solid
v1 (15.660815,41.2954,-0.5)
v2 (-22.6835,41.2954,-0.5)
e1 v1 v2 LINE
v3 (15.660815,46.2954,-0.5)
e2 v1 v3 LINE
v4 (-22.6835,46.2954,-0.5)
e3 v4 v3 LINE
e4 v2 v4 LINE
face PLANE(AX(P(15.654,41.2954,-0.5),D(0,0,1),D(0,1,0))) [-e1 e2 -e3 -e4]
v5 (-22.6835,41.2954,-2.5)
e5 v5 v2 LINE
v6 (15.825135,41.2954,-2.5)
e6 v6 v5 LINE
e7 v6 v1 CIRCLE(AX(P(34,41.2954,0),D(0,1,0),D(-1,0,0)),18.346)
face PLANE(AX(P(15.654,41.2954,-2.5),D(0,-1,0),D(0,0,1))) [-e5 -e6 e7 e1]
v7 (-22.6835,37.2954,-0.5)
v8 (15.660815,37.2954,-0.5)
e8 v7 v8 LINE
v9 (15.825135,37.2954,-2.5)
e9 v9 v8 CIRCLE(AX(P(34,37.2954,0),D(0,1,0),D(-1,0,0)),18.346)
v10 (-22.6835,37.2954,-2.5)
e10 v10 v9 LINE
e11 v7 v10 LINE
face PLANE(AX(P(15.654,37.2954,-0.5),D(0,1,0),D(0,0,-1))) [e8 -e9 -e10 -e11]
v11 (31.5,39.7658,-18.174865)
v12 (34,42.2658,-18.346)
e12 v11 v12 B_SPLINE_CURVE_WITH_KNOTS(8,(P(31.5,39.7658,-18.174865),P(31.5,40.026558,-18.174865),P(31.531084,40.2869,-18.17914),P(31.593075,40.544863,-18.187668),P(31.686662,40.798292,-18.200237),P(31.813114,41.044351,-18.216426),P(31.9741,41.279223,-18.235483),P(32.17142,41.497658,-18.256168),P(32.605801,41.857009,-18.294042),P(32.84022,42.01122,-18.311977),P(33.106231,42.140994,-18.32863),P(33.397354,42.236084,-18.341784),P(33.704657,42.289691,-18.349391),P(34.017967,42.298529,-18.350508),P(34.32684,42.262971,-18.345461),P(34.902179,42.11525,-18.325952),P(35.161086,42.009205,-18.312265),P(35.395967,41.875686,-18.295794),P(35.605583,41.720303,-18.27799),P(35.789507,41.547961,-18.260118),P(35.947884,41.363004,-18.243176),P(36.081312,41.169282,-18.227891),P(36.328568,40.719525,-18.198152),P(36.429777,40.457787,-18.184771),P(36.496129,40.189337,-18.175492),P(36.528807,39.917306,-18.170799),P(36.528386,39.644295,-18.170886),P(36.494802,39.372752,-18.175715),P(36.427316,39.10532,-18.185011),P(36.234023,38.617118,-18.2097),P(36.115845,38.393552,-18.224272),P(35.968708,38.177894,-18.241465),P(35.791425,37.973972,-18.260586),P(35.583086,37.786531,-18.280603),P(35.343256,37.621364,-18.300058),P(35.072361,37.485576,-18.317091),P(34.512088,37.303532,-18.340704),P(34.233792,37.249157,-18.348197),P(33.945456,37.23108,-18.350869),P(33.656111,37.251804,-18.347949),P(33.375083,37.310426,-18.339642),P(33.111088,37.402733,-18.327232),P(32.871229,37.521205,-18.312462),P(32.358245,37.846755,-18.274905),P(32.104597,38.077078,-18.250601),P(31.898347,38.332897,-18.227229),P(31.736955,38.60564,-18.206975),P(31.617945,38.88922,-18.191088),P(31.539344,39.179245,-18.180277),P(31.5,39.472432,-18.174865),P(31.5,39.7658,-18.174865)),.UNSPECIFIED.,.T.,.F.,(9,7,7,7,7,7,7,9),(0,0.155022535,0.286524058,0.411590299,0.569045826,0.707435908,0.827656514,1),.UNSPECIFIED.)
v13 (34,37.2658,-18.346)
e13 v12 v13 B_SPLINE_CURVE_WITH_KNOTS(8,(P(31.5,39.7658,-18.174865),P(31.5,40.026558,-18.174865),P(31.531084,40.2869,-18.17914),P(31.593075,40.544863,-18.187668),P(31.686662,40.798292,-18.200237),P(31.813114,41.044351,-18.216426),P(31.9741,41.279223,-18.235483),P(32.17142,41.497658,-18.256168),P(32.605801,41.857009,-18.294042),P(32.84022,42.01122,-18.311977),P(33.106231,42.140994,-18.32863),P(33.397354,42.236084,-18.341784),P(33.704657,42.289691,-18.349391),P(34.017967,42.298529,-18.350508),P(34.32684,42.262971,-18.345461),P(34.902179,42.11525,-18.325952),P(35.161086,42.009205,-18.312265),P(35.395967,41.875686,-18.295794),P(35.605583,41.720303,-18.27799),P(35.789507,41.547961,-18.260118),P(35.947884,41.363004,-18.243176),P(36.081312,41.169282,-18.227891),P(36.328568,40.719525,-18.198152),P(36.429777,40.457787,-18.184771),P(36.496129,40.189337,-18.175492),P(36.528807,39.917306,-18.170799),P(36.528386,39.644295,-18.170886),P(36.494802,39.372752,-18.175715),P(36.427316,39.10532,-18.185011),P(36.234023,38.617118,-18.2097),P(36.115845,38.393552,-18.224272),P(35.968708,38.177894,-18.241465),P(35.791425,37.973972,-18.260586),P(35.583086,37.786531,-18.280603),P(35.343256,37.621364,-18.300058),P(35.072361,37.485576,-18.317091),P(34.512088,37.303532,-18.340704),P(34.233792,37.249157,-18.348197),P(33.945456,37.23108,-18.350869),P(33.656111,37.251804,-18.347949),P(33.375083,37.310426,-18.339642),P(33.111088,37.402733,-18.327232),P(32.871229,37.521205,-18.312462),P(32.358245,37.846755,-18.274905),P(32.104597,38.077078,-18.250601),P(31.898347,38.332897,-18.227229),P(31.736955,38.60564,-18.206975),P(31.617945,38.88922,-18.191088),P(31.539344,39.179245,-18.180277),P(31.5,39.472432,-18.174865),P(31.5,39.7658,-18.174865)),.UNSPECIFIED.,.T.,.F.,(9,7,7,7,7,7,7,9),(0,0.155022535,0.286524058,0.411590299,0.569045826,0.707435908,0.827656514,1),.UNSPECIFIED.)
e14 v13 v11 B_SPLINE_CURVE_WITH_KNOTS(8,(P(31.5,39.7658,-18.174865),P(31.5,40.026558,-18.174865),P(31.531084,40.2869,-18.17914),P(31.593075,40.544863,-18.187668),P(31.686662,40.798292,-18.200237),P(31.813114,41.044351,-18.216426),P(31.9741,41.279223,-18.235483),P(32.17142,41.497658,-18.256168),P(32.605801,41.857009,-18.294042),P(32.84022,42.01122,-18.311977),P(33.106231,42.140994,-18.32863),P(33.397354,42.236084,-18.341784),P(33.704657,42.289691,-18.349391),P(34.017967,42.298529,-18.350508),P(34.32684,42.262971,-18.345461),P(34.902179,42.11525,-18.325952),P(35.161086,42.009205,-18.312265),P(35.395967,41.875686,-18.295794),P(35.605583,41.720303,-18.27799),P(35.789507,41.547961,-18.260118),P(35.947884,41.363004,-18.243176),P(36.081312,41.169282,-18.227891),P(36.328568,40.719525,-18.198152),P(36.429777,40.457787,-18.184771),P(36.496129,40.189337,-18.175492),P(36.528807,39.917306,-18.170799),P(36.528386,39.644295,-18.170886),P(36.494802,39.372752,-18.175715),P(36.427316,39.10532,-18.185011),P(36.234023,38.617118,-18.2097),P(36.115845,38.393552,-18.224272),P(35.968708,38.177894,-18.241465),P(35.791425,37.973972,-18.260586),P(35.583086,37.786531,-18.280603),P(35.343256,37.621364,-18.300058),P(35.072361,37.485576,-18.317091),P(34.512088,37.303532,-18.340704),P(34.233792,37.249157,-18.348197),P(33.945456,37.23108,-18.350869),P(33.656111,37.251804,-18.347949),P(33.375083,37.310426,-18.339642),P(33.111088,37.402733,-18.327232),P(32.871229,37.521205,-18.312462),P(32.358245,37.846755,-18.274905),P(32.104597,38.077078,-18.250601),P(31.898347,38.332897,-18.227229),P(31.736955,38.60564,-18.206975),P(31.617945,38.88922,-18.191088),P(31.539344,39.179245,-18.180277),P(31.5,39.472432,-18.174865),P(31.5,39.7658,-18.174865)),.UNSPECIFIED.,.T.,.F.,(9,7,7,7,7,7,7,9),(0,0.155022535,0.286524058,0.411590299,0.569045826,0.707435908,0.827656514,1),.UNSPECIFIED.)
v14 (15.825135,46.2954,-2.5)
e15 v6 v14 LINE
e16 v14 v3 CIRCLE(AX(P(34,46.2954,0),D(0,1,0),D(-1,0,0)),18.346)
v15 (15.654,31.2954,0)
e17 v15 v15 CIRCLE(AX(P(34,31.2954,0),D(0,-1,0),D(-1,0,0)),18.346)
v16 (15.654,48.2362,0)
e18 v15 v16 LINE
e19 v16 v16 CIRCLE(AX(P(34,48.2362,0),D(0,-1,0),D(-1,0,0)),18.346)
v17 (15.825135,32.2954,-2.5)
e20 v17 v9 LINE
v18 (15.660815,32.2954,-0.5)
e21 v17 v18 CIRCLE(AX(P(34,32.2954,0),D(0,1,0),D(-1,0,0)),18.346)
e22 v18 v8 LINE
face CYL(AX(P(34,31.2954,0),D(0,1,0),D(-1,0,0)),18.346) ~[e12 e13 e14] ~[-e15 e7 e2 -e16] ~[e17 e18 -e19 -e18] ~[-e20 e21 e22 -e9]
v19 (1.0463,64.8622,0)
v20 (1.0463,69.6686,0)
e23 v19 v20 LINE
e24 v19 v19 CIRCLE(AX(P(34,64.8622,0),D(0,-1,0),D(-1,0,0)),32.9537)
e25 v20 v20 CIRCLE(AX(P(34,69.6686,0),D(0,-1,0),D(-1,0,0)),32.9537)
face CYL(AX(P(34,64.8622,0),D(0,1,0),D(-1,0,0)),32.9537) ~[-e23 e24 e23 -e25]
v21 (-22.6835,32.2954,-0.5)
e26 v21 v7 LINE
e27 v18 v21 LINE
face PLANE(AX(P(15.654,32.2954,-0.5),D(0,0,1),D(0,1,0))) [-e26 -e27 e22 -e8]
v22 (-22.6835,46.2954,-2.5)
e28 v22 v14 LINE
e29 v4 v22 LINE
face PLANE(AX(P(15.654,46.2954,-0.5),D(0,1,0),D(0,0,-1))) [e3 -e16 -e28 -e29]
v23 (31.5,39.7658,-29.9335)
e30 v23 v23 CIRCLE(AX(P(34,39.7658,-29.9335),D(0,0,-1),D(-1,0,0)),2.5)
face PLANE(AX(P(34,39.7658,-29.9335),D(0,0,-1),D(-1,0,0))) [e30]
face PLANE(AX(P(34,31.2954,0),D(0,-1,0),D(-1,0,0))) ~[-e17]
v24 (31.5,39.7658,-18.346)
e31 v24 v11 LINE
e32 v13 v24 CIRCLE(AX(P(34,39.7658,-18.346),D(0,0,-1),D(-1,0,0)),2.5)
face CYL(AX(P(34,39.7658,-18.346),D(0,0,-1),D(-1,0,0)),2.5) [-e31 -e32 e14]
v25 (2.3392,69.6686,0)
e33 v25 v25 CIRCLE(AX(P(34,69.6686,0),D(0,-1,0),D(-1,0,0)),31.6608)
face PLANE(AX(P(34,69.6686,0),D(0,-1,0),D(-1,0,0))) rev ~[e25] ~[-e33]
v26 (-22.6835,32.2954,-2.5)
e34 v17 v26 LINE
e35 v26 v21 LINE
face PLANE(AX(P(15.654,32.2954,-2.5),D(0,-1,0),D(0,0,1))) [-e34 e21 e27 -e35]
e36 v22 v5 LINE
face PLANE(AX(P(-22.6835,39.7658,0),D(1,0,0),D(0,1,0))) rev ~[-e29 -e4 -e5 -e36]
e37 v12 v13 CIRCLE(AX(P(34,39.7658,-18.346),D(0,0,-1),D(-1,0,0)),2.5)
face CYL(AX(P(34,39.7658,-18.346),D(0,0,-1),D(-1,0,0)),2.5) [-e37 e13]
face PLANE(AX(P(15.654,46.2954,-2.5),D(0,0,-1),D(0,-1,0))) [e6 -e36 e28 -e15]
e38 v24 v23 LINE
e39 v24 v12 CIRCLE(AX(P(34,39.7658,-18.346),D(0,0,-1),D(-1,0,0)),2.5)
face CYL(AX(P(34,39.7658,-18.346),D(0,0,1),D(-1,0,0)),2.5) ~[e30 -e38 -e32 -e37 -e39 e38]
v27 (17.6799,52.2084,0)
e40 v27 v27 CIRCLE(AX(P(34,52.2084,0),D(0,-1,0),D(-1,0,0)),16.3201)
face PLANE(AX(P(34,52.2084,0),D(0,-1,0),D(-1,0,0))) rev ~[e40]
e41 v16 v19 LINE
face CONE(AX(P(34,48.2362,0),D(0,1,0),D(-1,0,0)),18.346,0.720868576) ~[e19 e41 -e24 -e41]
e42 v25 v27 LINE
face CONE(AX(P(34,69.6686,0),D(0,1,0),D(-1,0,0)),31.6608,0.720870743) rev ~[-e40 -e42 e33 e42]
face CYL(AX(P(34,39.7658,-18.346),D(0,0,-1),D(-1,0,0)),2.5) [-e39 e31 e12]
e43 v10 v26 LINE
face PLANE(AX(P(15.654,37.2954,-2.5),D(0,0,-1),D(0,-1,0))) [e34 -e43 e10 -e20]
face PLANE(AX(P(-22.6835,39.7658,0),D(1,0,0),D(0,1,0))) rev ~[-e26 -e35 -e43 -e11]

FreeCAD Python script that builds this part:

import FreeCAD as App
import Part
import Sketcher


def add_polygon(sketch, points):
    """Adds a closed chain of lines whose ends are joined by coincident constraints."""
    first, n = sketch.GeometryCount, len(points)
    for a, b in zip(points, points[1:] + points[:1]):
        sketch.addGeometry(Part.LineSegment(App.Vector(*a, 0), App.Vector(*b, 0)), False)
    for i in range(n):
        sketch.addConstraint(Sketcher.Constraint("Coincident", first + i, 2, first + (i + 1) % n, 1))

doc = App.newDocument("Part")
body = doc.addObject("PartDesign::Body", "Body")

sketch1 = doc.addObject("Sketcher::SketchObject", "Sketch")
body.addObject(sketch1)
sketch1.AttachmentSupport = (doc.XY_Plane, [""])
sketch1.MapMode = "FlatFace"
add_polygon(sketch1, [(15.7, 31.3), (34, 31.3), (34, 52.2), (17.7, 52.2), (2.3, 69.7), (1, 69.7), (1, 64.9), (15.7, 48.2)])
sketch1.addGeometry(Part.LineSegment(App.Vector(34, 69.7, 0), App.Vector(34, 31.3, 0)), True)
sketch1.addConstraint([
    Sketcher.Constraint("Horizontal", 0),
    Sketcher.Constraint("Vertical", 1),
    Sketcher.Constraint("Horizontal", 2),
    Sketcher.Constraint("Horizontal", 4),
    Sketcher.Constraint("Vertical", 5),
    Sketcher.Constraint("Vertical", 7),
    Sketcher.Constraint("Vertical", 8),
    Sketcher.Constraint("Coincident", 8, 2, 0, 2),
    Sketcher.Constraint("Parallel", 3, 6),
    Sketcher.Constraint("Horizontal", 4, 2, 8, 1),
    Sketcher.Constraint("DistanceX", -1, 1, 0, 2, 34.0),
    Sketcher.Constraint("DistanceX", 2, 2, 2, 1, 16.32),
    Sketcher.Constraint("DistanceX", 0, 1, 0, 2, 18.346),
    Sketcher.Constraint("DistanceX", 4, 2, 4, 1, 1.293),
    Sketcher.Constraint("DistanceY", 1, 1, 1, 2, 20.913),
    Sketcher.Constraint("Distance", 3, 23.242),
    Sketcher.Constraint("DistanceY", 5, 2, 5, 1, 4.8064),
    Sketcher.Constraint("DistanceY", 7, 2, 7, 1, 16.9408),
    Sketcher.Constraint("DistanceY", -1, 1, 0, 2, 31.2954),
])
revolution = doc.addObject("PartDesign::Revolution", "Revolution")
body.addObject(revolution)
revolution.Profile = sketch1
revolution.ReferenceAxis = (sketch1, ["Axis0"])
revolution.Angle = 360

sketch2 = doc.addObject("Sketcher::SketchObject", "Sketch001")
body.addObject(sketch2)
sketch2.AttachmentSupport = (doc.YZ_Plane, [""])
sketch2.MapMode = "FlatFace"
sketch2.AttachmentOffset = App.Placement(App.Vector(0, 0, 15.654), App.Rotation())
add_polygon(sketch2, [(32.3, -2.5), (37.3, -2.5), (37.3, -0.5), (32.3, -0.5)])
add_polygon(sketch2, [(41.3, -2.5), (46.3, -2.5), (46.3, -0.5), (41.3, -0.5)])
sketch2.addConstraint([
    Sketcher.Constraint("Horizontal", 0),
    Sketcher.Constraint("Vertical", 1),
    Sketcher.Constraint("Horizontal", 2),
    Sketcher.Constraint("Vertical", 3),
    Sketcher.Constraint("Horizontal", 4),
    Sketcher.Constraint("Vertical", 5),
    Sketcher.Constraint("Horizontal", 6),
    Sketcher.Constraint("Vertical", 7),
    Sketcher.Constraint("Horizontal", 3, 2, 4, 2),
    Sketcher.Constraint("Horizontal", 2, 2, 5, 2),
    Sketcher.Constraint("Equal", 2, 4),
    Sketcher.Constraint("DistanceX", 0, 1, 0, 2, 5.0),
    Sketcher.Constraint("DistanceY", 1, 1, 1, 2, 2.0),
    Sketcher.Constraint("DistanceX", 1, 2, 6, 2, 4.0),
    Sketcher.Constraint("DistanceY", 1, 2, -1, 1, 0.5),
    Sketcher.Constraint("DistanceX", -1, 1, 0, 2, 37.2954),
])
pad1 = doc.addObject("PartDesign::Pad", "Pad")
body.addObject(pad1)
pad1.Profile = sketch2
pad1.Type = "TwoLengths"
pad1.Length = 2.0625
pad1.Length2 = 38.3375

sketch3 = doc.addObject("Sketcher::SketchObject", "Sketch002")
body.addObject(sketch3)
sketch3.AttachmentSupport = (doc.XY_Plane, [""])
sketch3.MapMode = "FlatFace"
sketch3.AttachmentOffset = App.Placement(App.Vector(0, 0, -18.346), App.Rotation())
sketch3.addGeometry(Part.Circle(App.Vector(34, 39.8, 0), App.Vector(0, 0, 1), 2.5), False)
sketch3.addConstraint([
    Sketcher.Constraint("Diameter", 0, 5.0),
    Sketcher.Constraint("DistanceX", -1, 1, 0, 3, 34.0),
    Sketcher.Constraint("DistanceY", -1, 1, 0, 3, 39.7658),
])
pad2 = doc.addObject("PartDesign::Pad", "Pad001")
body.addObject(pad2)
pad2.Profile = sketch3
pad2.Type = "TwoLengths"
pad2.Length = 11.5875
pad2.Length2 = 5.7935
pad2.Reversed = True

doc.recompute()
